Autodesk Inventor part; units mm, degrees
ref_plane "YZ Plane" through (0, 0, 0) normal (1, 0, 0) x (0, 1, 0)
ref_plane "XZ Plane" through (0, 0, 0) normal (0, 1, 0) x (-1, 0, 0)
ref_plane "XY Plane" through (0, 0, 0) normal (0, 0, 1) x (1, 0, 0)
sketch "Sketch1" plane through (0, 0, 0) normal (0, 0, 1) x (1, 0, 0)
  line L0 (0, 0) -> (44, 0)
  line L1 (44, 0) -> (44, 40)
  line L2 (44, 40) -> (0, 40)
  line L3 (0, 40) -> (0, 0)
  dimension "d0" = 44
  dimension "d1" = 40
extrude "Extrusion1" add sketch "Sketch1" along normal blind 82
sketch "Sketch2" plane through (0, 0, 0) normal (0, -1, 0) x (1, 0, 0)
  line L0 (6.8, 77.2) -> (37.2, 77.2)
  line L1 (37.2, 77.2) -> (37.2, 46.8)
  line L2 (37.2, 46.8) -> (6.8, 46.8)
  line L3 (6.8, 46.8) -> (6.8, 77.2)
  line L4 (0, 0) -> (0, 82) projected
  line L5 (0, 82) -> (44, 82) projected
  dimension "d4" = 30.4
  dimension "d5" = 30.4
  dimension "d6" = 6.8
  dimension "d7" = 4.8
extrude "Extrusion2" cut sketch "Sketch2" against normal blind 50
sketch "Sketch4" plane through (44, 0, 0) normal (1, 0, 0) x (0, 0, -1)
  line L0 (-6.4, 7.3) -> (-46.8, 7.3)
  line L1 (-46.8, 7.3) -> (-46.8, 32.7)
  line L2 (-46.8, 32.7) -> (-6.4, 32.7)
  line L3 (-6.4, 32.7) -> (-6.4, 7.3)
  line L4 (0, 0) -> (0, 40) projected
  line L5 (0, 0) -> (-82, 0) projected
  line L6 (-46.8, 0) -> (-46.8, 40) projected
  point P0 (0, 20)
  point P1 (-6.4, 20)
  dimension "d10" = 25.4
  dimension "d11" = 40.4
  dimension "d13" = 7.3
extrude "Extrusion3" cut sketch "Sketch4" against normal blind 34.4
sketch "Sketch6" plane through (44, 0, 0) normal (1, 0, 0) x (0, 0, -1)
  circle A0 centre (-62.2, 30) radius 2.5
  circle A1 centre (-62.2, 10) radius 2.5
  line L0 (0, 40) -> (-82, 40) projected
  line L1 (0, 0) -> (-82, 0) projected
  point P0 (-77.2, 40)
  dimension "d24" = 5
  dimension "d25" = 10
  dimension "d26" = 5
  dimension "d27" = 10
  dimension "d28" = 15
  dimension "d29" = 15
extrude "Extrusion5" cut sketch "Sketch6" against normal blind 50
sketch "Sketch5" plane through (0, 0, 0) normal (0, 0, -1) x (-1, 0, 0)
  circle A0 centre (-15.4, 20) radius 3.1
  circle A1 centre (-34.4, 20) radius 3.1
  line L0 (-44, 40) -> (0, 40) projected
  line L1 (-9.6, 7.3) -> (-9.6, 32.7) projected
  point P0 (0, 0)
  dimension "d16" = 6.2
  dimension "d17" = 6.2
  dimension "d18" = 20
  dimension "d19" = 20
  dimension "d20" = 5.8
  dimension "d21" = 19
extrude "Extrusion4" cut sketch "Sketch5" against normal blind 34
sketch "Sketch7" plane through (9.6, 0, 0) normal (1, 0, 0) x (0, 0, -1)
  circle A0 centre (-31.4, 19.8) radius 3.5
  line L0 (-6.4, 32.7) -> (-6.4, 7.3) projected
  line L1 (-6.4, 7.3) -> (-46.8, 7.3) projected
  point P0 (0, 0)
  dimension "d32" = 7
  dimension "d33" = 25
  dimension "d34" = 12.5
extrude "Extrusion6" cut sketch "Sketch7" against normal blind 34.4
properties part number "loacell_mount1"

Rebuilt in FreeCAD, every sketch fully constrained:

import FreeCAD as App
import Part
import Sketcher
from FreeCAD import Vector

doc = App.newDocument("Part")
body = doc.addObject("PartDesign::Body", "Body")

# Sketch on XY plane
sketch1 = body.newObject("Sketcher::SketchObject", "Sketch")
sketch1.AttachmentSupport = (doc.getObject("XY_Plane"), [""])
sketch1.MapMode = "FlatFace"
sketch1.addGeometry([
    Part.LineSegment(Vector(0, 40, 0), Vector(0, 0, 0)),
    Part.LineSegment(Vector(0, 0, 0), Vector(44, 0, 0)),
    Part.LineSegment(Vector(44, 0, 0), Vector(44, 40, 0)),
    Part.LineSegment(Vector(44, 40, 0), Vector(0, 40, 0)),
], False)
sketch1.addConstraint([
    Sketcher.Constraint("Coincident", 0, 2, 1, 1),
    Sketcher.Constraint("Coincident", 1, 2, 2, 1),
    Sketcher.Constraint("Coincident", 2, 2, 3, 1),
    Sketcher.Constraint("Coincident", 3, 2, 0, 1),
    Sketcher.Constraint("Vertical", 0),
    Sketcher.Constraint("Horizontal", 1),
    Sketcher.Constraint("Vertical", 2),
    Sketcher.Constraint("Horizontal", 3),
    Sketcher.Constraint("Coincident", 0, 2, -1, 1),
    Sketcher.Constraint("DistanceX", 1, 1, 1, 2, 44.0),
    Sketcher.Constraint("DistanceY", 0, 2, 0, 1, 40.0),
])
pad1 = body.newObject("PartDesign::Pad", "Pad")
pad1.Profile = sketch1
pad1.Length = 82

# Sketch on XZ plane
sketch2 = body.newObject("Sketcher::SketchObject", "Sketch001")
sketch2.AttachmentSupport = (doc.getObject("XZ_Plane"), [""])
sketch2.MapMode = "FlatFace"
sketch2.addGeometry([
    Part.LineSegment(Vector(37, 77, 0), Vector(7, 77, 0)),
    Part.LineSegment(Vector(7, 77, 0), Vector(7, 47, 0)),
    Part.LineSegment(Vector(7, 47, 0), Vector(37, 47, 0)),
    Part.LineSegment(Vector(37, 47, 0), Vector(37, 77, 0)),
], False)
sketch2.addConstraint([
    Sketcher.Constraint("Coincident", 0, 2, 1, 1),
    Sketcher.Constraint("Coincident", 1, 2, 2, 1),
    Sketcher.Constraint("Coincident", 2, 2, 3, 1),
    Sketcher.Constraint("Coincident", 3, 2, 0, 1),
    Sketcher.Constraint("Horizontal", 0),
    Sketcher.Constraint("Vertical", 1),
    Sketcher.Constraint("Horizontal", 2),
    Sketcher.Constraint("Vertical", 3),
    Sketcher.Constraint("Equal", 2, 1),
    Sketcher.Constraint("DistanceX", 0, 2, 0, 1, 30.4),
    Sketcher.Constraint("DistanceX", -1, 1, 0, 2, 6.8),
    Sketcher.Constraint("DistanceY", -1, 1, 0, 2, 77.2),
])
pocket1 = body.newObject("PartDesign::Pocket", "Pocket")
pocket1.Profile = sketch2
pocket1.Length = 50

# Sketch on YZ plane
sketch3 = body.newObject("Sketcher::SketchObject", "Sketch002")
sketch3.AttachmentSupport = (doc.getObject("YZ_Plane"), [""])
sketch3.MapMode = "FlatFace"
sketch3.AttachmentOffset = App.Placement(Vector(0, 0, 44), App.Rotation())
sketch3.addGeometry([
    Part.LineSegment(Vector(7, 47, 0), Vector(7, 6, 0)),
    Part.LineSegment(Vector(7, 6, 0), Vector(33, 6, 0)),
    Part.LineSegment(Vector(33, 6, 0), Vector(33, 47, 0)),
    Part.LineSegment(Vector(33, 47, 0), Vector(7, 47, 0)),
], False)
sketch3.addConstraint([
    Sketcher.Constraint("Coincident", 0, 2, 1, 1),
    Sketcher.Constraint("Coincident", 1, 2, 2, 1),
    Sketcher.Constraint("Coincident", 2, 2, 3, 1),
    Sketcher.Constraint("Coincident", 3, 2, 0, 1),
    Sketcher.Constraint("Vertical", 0),
    Sketcher.Constraint("Horizontal", 1),
    Sketcher.Constraint("Vertical", 2),
    Sketcher.Constraint("Horizontal", 3),
    Sketcher.Constraint("DistanceX", 1, 1, 1, 2, 25.4),
    Sketcher.Constraint("DistanceY", 0, 2, 0, 1, 40.4),
    Sketcher.Constraint("DistanceX", -1, 1, 0, 2, 7.3),
    Sketcher.Constraint("DistanceY", -1, 1, 0, 2, 6.4),
])
pocket2 = body.newObject("PartDesign::Pocket", "Pocket001")
pocket2.Profile = sketch3
pocket2.Length = 34.4

# Sketch on YZ plane
sketch4 = body.newObject("Sketcher::SketchObject", "Sketch003")
sketch4.AttachmentSupport = (doc.getObject("YZ_Plane"), [""])
sketch4.MapMode = "FlatFace"
sketch4.AttachmentOffset = App.Placement(Vector(0, 0, 44), App.Rotation())
sketch4.addGeometry([
    Part.Circle(Vector(30, 62.2, 0), Vector(0, 0, 1), 2.5),
    Part.Circle(Vector(10, 62.2, 0), Vector(0, 0, 1), 2.5),
], False)
sketch4.addConstraint([
    Sketcher.Constraint("Equal", 0, 1),
    Sketcher.Constraint("Horizontal", 0, 3, 1, 3),
    Sketcher.Constraint("Diameter", 0, 5.0),
    Sketcher.Constraint("DistanceX", -1, 1, 1, 3, 10.0),
    Sketcher.Constraint("DistanceX", -1, 1, 0, 3, 30.0),
    Sketcher.Constraint("DistanceY", -1, 1, 0, 3, 62.2),
])
pocket3 = body.newObject("PartDesign::Pocket", "Pocket002")
pocket3.Profile = sketch4
pocket3.Length = 50

# Sketch on XY plane
sketch5 = body.newObject("Sketcher::SketchObject", "Sketch004")
sketch5.AttachmentSupport = (doc.getObject("XY_Plane"), [""])
sketch5.MapMode = "FlatFace"
sketch5.addGeometry([
    Part.Circle(Vector(15.4, 20, 0), Vector(0, 0, 1), 3.1),
    Part.Circle(Vector(34.4, 20, 0), Vector(0, 0, 1), 3.1),
], False)
sketch5.addConstraint([
    Sketcher.Constraint("Equal", 0, 1),
    Sketcher.Constraint("Horizontal", 0, 3, 1, 3),
    Sketcher.Constraint("Diameter", 0, 6.2),
    Sketcher.Constraint("DistanceY", -1, 1, 0, 3, 20.0),
    Sketcher.Constraint("DistanceX", 0, 3, 1, 3, 19.0),
    Sketcher.Constraint("DistanceX", -1, 1, 0, 3, 15.4),
])
pocket4 = body.newObject("PartDesign::Pocket", "Pocket003")
pocket4.Profile = sketch5
pocket4.Length = 34
pocket4.Reversed = True

# Sketch on YZ plane
sketch6 = body.newObject("Sketcher::SketchObject", "Sketch005")
sketch6.AttachmentSupport = (doc.getObject("YZ_Plane"), [""])
sketch6.MapMode = "FlatFace"
sketch6.AttachmentOffset = App.Placement(Vector(0, 0, 9.6), App.Rotation())
sketch6.addGeometry(Part.Circle(Vector(19.8, 31.4, 0), Vector(0, 0, 1), 3.5), False)
sketch6.addConstraint([
    Sketcher.Constraint("Diameter", 0, 7.0),
    Sketcher.Constraint("DistanceX", -1, 1, 0, 3, 19.8),
    Sketcher.Constraint("DistanceY", -1, 1, 0, 3, 31.4),
])
pocket5 = body.newObject("PartDesign::Pocket", "Pocket004")
pocket5.Profile = sketch6
pocket5.Length = 34.4

doc.recompute()
